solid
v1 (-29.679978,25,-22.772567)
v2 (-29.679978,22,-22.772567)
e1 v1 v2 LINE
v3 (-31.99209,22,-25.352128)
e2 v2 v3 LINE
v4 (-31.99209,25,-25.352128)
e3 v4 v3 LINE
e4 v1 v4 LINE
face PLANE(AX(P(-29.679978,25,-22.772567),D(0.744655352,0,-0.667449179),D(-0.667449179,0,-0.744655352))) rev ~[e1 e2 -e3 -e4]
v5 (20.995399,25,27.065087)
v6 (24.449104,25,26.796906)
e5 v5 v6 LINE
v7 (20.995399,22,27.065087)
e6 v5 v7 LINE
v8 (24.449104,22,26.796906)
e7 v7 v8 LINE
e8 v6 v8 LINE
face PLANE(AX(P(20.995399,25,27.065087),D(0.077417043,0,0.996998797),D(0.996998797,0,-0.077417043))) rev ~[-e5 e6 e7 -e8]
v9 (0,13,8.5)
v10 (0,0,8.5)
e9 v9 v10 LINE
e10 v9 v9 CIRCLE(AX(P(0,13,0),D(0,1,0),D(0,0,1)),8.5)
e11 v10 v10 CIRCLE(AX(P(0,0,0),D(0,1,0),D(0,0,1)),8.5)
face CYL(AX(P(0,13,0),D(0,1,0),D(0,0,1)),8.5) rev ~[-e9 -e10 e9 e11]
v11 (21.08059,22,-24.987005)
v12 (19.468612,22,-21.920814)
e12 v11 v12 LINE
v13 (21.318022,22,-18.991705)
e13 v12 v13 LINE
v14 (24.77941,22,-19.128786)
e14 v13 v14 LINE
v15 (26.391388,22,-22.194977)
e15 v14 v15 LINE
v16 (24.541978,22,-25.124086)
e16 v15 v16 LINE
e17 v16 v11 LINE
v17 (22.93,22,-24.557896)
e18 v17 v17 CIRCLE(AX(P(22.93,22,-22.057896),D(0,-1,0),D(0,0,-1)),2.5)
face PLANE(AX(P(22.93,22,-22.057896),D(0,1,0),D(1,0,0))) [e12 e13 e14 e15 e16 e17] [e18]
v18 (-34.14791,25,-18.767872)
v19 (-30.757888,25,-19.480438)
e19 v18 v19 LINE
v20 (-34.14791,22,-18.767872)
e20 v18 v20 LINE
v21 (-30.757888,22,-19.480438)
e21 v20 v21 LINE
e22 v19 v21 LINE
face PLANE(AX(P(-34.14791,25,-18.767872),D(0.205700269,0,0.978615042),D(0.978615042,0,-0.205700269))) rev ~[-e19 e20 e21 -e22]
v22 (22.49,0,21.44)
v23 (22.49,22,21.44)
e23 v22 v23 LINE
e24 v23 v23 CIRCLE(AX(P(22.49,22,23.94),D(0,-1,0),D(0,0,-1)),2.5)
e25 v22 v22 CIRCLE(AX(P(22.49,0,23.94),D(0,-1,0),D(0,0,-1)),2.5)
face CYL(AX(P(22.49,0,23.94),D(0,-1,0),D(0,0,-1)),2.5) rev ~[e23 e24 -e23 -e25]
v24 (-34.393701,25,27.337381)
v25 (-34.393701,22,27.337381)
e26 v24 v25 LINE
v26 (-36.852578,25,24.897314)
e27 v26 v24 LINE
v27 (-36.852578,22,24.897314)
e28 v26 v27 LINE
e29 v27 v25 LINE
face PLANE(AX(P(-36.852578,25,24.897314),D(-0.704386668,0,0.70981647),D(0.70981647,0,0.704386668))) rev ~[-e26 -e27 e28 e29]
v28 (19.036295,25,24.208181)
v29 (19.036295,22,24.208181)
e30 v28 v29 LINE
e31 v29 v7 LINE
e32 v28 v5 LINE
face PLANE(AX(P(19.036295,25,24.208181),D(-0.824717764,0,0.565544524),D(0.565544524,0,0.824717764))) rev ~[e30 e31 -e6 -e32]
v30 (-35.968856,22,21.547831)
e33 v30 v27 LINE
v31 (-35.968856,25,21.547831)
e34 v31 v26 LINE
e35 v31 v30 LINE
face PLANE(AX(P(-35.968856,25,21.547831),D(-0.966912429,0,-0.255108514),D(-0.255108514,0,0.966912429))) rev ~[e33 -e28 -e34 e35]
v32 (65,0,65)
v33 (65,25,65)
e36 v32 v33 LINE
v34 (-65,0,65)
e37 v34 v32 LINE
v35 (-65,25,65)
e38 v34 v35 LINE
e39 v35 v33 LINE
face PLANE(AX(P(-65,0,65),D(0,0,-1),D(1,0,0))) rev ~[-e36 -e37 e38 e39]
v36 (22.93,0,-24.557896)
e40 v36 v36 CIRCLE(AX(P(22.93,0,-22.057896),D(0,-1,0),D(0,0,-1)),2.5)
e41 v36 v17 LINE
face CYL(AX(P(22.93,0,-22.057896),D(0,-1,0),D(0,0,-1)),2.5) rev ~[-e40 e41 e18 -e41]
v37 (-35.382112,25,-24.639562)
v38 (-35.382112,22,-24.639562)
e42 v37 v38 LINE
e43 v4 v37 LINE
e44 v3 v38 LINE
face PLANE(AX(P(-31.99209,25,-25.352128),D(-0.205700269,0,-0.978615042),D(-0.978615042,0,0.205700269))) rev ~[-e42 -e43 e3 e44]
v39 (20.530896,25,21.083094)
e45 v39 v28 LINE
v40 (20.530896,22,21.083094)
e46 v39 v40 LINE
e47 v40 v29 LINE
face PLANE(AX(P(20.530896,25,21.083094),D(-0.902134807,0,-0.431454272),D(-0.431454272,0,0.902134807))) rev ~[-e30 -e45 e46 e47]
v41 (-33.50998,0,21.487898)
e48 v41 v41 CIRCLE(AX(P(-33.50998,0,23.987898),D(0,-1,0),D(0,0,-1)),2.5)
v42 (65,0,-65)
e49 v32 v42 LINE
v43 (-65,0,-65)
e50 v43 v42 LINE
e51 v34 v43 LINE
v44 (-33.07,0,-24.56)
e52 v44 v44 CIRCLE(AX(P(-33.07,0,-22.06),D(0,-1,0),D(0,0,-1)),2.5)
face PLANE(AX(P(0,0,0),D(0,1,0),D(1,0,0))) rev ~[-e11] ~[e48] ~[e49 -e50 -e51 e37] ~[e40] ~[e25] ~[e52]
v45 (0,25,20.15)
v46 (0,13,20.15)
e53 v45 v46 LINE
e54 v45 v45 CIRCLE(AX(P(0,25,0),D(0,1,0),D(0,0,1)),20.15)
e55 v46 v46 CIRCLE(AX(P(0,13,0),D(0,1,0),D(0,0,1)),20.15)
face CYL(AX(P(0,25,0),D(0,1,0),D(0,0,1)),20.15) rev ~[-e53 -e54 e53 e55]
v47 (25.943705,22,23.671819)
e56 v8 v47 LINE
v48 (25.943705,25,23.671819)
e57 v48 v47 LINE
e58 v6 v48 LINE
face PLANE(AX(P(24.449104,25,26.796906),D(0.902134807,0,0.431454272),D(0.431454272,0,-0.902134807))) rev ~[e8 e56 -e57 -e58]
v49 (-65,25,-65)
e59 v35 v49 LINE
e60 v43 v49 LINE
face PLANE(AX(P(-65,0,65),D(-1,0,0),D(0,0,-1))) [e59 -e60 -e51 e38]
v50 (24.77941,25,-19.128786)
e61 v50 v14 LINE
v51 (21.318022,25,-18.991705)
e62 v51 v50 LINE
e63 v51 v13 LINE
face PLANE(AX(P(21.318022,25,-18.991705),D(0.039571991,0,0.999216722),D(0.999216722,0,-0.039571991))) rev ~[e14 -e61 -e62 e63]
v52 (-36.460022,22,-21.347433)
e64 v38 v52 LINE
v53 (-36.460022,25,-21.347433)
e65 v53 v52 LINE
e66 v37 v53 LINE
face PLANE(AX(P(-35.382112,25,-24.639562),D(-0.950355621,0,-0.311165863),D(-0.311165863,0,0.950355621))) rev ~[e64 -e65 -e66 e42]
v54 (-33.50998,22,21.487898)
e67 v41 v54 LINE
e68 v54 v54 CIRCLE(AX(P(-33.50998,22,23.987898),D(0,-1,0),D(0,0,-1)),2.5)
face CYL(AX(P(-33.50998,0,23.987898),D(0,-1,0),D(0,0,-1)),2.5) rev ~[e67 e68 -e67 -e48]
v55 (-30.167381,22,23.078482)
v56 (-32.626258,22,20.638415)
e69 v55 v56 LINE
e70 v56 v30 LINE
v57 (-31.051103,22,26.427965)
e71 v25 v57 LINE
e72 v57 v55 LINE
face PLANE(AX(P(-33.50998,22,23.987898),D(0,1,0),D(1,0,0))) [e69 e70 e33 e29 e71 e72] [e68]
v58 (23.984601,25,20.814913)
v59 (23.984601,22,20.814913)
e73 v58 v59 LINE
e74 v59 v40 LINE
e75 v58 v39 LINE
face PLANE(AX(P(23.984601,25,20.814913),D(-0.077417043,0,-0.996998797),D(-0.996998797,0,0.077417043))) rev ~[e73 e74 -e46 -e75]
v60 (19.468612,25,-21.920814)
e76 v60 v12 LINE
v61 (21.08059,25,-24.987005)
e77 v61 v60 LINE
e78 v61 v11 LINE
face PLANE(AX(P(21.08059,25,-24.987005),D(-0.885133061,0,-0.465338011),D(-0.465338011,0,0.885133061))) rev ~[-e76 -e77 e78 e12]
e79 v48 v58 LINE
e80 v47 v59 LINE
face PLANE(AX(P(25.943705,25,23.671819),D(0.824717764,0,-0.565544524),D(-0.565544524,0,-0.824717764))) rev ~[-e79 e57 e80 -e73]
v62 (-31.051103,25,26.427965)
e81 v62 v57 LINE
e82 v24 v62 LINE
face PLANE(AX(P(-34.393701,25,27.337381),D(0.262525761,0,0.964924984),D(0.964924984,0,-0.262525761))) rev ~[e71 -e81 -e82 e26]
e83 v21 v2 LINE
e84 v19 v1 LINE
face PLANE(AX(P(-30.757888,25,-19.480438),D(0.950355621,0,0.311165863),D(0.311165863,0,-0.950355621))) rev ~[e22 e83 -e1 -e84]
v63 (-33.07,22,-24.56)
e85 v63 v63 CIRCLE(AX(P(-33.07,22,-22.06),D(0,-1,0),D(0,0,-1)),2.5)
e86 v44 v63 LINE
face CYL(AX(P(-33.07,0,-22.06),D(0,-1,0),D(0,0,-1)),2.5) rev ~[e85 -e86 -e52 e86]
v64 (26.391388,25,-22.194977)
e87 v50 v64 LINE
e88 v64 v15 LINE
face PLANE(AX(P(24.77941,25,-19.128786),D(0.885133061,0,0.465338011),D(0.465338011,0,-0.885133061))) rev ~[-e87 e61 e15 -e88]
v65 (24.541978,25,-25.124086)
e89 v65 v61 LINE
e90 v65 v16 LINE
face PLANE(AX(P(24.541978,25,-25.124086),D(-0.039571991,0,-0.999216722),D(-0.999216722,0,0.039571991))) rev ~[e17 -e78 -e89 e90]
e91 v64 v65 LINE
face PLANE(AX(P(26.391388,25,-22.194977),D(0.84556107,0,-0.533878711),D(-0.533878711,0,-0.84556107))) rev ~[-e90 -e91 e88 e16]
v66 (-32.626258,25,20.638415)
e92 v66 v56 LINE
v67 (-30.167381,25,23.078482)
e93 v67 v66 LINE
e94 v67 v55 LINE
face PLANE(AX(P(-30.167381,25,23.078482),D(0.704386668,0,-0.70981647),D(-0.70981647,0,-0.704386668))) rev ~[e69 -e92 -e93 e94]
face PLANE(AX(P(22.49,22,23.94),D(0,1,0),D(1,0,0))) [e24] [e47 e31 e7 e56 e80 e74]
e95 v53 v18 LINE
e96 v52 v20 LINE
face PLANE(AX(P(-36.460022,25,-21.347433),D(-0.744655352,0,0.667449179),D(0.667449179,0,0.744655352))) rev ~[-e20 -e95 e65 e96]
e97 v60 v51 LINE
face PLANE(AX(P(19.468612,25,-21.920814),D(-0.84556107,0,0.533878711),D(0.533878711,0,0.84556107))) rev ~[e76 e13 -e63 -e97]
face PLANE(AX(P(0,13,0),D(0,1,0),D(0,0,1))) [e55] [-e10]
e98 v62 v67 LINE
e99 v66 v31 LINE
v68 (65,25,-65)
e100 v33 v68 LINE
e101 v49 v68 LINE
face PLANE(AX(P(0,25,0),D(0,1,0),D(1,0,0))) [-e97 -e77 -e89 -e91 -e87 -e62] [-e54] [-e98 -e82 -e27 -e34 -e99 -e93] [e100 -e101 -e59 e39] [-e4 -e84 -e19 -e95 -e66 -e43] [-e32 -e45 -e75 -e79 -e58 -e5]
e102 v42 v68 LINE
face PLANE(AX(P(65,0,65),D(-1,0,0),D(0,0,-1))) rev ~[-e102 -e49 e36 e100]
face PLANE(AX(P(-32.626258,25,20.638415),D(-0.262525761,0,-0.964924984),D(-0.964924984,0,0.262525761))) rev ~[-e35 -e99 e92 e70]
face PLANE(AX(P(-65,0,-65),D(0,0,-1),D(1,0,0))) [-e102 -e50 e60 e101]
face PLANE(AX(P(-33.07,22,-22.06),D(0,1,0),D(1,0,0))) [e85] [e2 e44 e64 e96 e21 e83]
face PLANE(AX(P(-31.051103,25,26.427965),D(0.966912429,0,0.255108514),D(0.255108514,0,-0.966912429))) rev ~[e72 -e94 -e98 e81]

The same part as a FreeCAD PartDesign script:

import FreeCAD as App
import Part
import Sketcher
Q = App.Units.Quantity


def add_polygon(sketch, points):
    """Adds a closed chain of lines whose ends are joined by coincident constraints."""
    first, n = sketch.GeometryCount, len(points)
    for a, b in zip(points, points[1:] + points[:1]):
        sketch.addGeometry(Part.LineSegment(App.Vector(*a, 0), App.Vector(*b, 0)), False)
    for i in range(n):
        sketch.addConstraint(Sketcher.Constraint("Coincident", first + i, 2, first + (i + 1) % n, 1))

doc = App.newDocument("Part")
body = doc.addObject("PartDesign::Body", "Body")

# Sketch on XZ plane
sketch1 = body.newObject("Sketcher::SketchObject", "Sketch")
sketch1.AttachmentSupport = (doc.getObject("XZ_Plane"), [""])
sketch1.MapMode = "FlatFace"
add_polygon(sketch1, [(-65, -65), (-65, 65), (65, 65), (65, -65)])  # lines 0-3
sketch1.addConstraint([
    Sketcher.Constraint("Vertical", 0),
    Sketcher.Constraint("Horizontal", 1),
    Sketcher.Constraint("Vertical", 2),
    Sketcher.Constraint("Horizontal", 3),
    Sketcher.Constraint("Symmetric", 0, 2, 2, 2, -1, 1),
    Sketcher.Constraint("Equal", 3, 0),
    Sketcher.Constraint("DistanceX", 1, 1, 1, 2, 130.0),
])
pad1 = body.newObject("PartDesign::Pad", "Pad")
pad1.Profile = sketch1
pad1.Length = 25
pad1.Reversed = True

# Sketch on XZ plane
sketch2 = body.newObject("Sketcher::SketchObject", "Sketch001")
sketch2.AttachmentSupport = (doc.getObject("XZ_Plane"), [""])
sketch2.MapMode = "FlatFace"
sketch2.AttachmentOffset = App.Placement(App.Vector(0, 0, -25), App.Rotation())
sketch2.addGeometry(Part.Circle(App.Vector(0, 0, 0), App.Vector(0, 0, 1), 20), False)
sketch2.addConstraint([
    Sketcher.Constraint("Coincident", 0, 3, -1, 1),
    Sketcher.Constraint("Diameter", 0, 40.3),
])
pocket1 = body.newObject("PartDesign::Pocket", "Pocket")
pocket1.Profile = sketch2
pocket1.Length = 12
pocket1.Reversed = True

# Sketch on XZ plane
sketch3 = body.newObject("Sketcher::SketchObject", "Sketch002")
sketch3.AttachmentSupport = (doc.getObject("XZ_Plane"), [""])
sketch3.MapMode = "FlatFace"
sketch3.AttachmentOffset = App.Placement(App.Vector(0, 0, -13), App.Rotation())
sketch3.addGeometry(Part.Circle(App.Vector(0, 0, 0), App.Vector(0, 0, 1), 8), False)
sketch3.addConstraint([
    Sketcher.Constraint("Coincident", 0, 3, -1, 1),
    Sketcher.Constraint("Diameter", 0, 17.0),
])
pocket2 = body.newObject("PartDesign::Pocket", "Pocket001")
pocket2.Profile = sketch3
pocket2.Length = 22
pocket2.Reversed = True

# Sketch on XZ plane
sketch4 = body.newObject("Sketcher::SketchObject", "Sketch003")
sketch4.AttachmentSupport = (doc.getObject("XZ_Plane"), [""])
sketch4.MapMode = "FlatFace"
sketch4.addGeometry([
    Part.Circle(App.Vector(22.5, 23.9, 0), App.Vector(0, 0, 1), 2.5),
    Part.Circle(App.Vector(-33.5, 24, 0), App.Vector(0, 0, 1), 2.5),
    Part.Circle(App.Vector(-33.1, -22.1, 0), App.Vector(0, 0, 1), 2.5),
    Part.Circle(App.Vector(22.9, -22.1, 0), App.Vector(0, 0, 1), 2.5),
], False)
sketch4.addConstraint([
    Sketcher.Constraint("Equal", 0, 1),
    Sketcher.Constraint("Equal", 1, 2),
    Sketcher.Constraint("Equal", 2, 3),
    Sketcher.Constraint("Diameter", 0, 5.0),
    Sketcher.Constraint("DistanceY", 2, 3, 0, 3, 46.0),
    Sketcher.Constraint("DistanceX", 2, 3, 3, 3, 56.0),
    Sketcher.Constraint("DistanceX", -1, 1, 0, 3, 22.49),
    Sketcher.Constraint("DistanceY", -1, 1, 0, 3, 23.94),
    Sketcher.Constraint("DistanceX", 2, 3, -1, 1, 33.07),
    Sketcher.Constraint("DistanceY", -1, 1, 1, 3, 23.987898),
    Sketcher.Constraint("DistanceX", 1, 3, -1, 1, 33.50998),
    Sketcher.Constraint("DistanceY", 3, 3, -1, 1, 22.057896),
])
pocket3 = body.newObject("PartDesign::Pocket", "Pocket002")
pocket3.Profile = sketch4
pocket3.Length = 30

# Sketch on XZ plane
sketch5 = body.newObject("Sketcher::SketchObject", "Sketch004")
sketch5.AttachmentSupport = (doc.getObject("XZ_Plane"), [""])
sketch5.MapMode = "FlatFace"
sketch5.AttachmentOffset = App.Placement(App.Vector(0, 0, -25), App.Rotation())
add_polygon(sketch5, [(24, 20.8), (20.5, 21.1), (19, 24.2), (21, 27.1), (24.4, 26.8), (25.9, 23.7)])  # lines 0-5
add_polygon(sketch5, [(-32.6, 20.6), (-36, 21.5), (-36.9, 24.9), (-34.4, 27.3), (-31.1, 26.4), (-30.2, 23.1)])  # lines 6-11
add_polygon(sketch5, [(-34.1, -18.8), (-30.8, -19.5), (-29.7, -22.8), (-32, -25.4), (-35.4, -24.6), (-36.5, -21.3)])  # lines 12-17
add_polygon(sketch5, [(24.8, -19.1), (26.4, -22.2), (24.5, -25.1), (21.1, -25), (19.5, -21.9), (21.3, -19)])  # lines 18-23
sketch5.addConstraint([
    Sketcher.Constraint("Parallel", 0, 3),
    Sketcher.Constraint("Parallel", 1, 4),
    Sketcher.Constraint("Parallel", 2, 5),
    Sketcher.Constraint("Parallel", 6, 9),
    Sketcher.Constraint("Parallel", 7, 10),
    Sketcher.Constraint("Parallel", 8, 11),
    Sketcher.Constraint("Parallel", 12, 15),
    Sketcher.Constraint("Parallel", 13, 16),
    Sketcher.Constraint("Parallel", 14, 17),
    Sketcher.Constraint("Parallel", 18, 21),
    Sketcher.Constraint("Parallel", 19, 22),
    Sketcher.Constraint("Parallel", 20, 23),
    Sketcher.Constraint("Equal", 0, 1),
    Sketcher.Constraint("Equal", 1, 2),
    Sketcher.Constraint("Equal", 2, 3),
    Sketcher.Constraint("Equal", 5, 6),
    Sketcher.Constraint("Equal", 6, 7),
    Sketcher.Constraint("Equal", 7, 8),
    Sketcher.Constraint("Equal", 8, 9),
    Sketcher.Constraint("Equal", 11, 12),
    Sketcher.Constraint("Equal", 12, 13),
    Sketcher.Constraint("Equal", 13, 14),
    Sketcher.Constraint("Equal", 14, 15),
    Sketcher.Constraint("Equal", 17, 18),
    Sketcher.Constraint("Equal", 18, 19),
    Sketcher.Constraint("Equal", 19, 20),
    Sketcher.Constraint("Equal", 20, 21),
    Sketcher.Constraint("Angle", 6, Q("164.780015 deg")),
    Sketcher.Constraint("Angle", 7, Q("104.780015 deg")),
    Sketcher.Constraint("Angle", 8, Q("44.780015 deg")),
    Sketcher.Constraint("DistanceX", 9, 2, 0, 2, 51.581999),
    Sketcher.Constraint("DistanceY", 19, 2, 5, 2, 45.939),
    Sketcher.Constraint("Distance", 0, 3.464102),
    Sketcher.Constraint("DistanceX", -1, 1, 2, 2, 20.995399),
    Sketcher.Constraint("DistanceX", -1, 1, 5, 2, 23.984601),
    Sketcher.Constraint("DistanceX", 8, 2, -1, 1, 34.393701),
    Sketcher.Constraint("DistanceX", 1, 2, 0, 2, 1.494601),
    Sketcher.Constraint("DistanceY", 5, 2, 7, 2, 4.082401),
    Sketcher.Constraint("DistanceX", 7, 2, 13, 2, 7.1726),
    Sketcher.Constraint("DistanceX", 14, 2, 12, 2, 1.234202),
    Sketcher.Constraint("DistanceX", 20, 2, 18, 2, 5.310798),
    Sketcher.Constraint("DistanceY", 20, 2, 0, 2, 46.070099),
    Sketcher.Constraint("DistanceY", 20, 2, 22, 2, 5.9953),
    Sketcher.Constraint("DistanceY", -1, 1, 1, 2, 24.208181),
    Sketcher.Constraint("DistanceX", 12, 2, -1, 1, 30.757888),
    Sketcher.Constraint("DistanceY", 12, 2, -1, 1, 19.480438),
    Sketcher.Constraint("DistanceX", 15, 2, -1, 1, 35.382112),
    Sketcher.Constraint("DistanceX", -1, 1, 18, 2, 26.391388),
])
pocket4 = body.newObject("PartDesign::Pocket", "Pocket003")
pocket4.Profile = sketch5
pocket4.Length = 3
pocket4.Reversed = True

doc.recompute()
